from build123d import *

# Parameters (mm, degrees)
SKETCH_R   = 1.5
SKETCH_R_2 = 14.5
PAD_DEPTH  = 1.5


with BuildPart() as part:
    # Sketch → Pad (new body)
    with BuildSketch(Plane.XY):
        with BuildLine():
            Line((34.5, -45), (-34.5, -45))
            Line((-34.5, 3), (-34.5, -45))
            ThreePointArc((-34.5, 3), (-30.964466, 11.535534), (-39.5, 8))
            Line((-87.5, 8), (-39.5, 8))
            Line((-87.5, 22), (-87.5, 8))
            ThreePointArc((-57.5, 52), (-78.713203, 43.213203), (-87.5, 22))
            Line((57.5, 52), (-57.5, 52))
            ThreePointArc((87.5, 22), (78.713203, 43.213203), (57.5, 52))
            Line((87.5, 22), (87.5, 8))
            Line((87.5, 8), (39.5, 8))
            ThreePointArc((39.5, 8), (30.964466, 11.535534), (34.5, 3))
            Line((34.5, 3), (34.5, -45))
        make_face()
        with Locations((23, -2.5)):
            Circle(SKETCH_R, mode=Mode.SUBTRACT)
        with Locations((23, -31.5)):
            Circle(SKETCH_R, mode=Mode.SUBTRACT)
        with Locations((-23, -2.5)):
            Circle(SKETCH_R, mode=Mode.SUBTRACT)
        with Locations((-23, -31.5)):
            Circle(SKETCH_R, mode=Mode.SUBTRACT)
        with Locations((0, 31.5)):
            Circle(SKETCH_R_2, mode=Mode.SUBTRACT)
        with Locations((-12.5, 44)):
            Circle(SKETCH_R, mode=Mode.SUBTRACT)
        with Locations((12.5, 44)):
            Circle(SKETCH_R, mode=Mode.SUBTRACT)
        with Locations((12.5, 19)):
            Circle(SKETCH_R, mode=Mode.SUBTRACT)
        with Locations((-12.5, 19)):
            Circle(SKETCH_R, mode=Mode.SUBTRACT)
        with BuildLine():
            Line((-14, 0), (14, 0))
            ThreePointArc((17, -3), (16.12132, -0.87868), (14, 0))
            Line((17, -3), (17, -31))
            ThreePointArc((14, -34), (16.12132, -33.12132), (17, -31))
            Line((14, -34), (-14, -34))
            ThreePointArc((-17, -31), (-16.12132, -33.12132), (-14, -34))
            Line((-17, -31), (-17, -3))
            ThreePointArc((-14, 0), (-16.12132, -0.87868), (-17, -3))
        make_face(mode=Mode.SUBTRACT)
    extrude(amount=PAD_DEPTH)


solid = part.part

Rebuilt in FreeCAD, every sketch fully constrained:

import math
import FreeCAD as App
import Part
import Sketcher

V = App.Vector

doc = App.newDocument("Part")
body = doc.addObject("PartDesign::Body", "Body")

# Sketch on XY plane
sketch1 = body.newObject("Sketcher::SketchObject", "Sketch")
sketch1.AttachmentSupport = (doc.getObject("XY_Plane"), [""])
sketch1.MapMode = "FlatFace"
sketch1.addGeometry([
    Part.LineSegment(V(-34.5, -45, 0), V(34.5, -45, 0)),  # 0
    Part.LineSegment(V(34.5, -45, 0), V(34.5, 3, 0)),  # 1
    Part.ArcOfCircle(Part.Circle(V(34.5, 8, 0), V(0, 0, 1), 5), math.radians(-0.000001), math.radians(270.000001)),  # 2
    Part.LineSegment(V(39.5, 8, 0), V(87.5, 8, 0)),  # 3
    Part.LineSegment(V(87.5, 8, 0), V(87.5, 22, 0)),  # 4
    Part.ArcOfCircle(Part.Circle(V(57.499999, 21.999999, 0), V(0, 0, 1), 30.000001), math.radians(0.000003), math.radians(89.999997)),  # 5
    Part.LineSegment(V(57.5, 52, 0), V(-57.5, 52, 0)),  # 6
    Part.ArcOfCircle(Part.Circle(V(-57.499999, 21.999999, 0), V(0, 0, 1), 30.000001), math.radians(90.000003), math.radians(179.999997)),  # 7
    Part.LineSegment(V(-87.5, 22, 0), V(-87.5, 8, 0)),  # 8
    Part.LineSegment(V(-87.5, 8, 0), V(-39.5, 8, 0)),  # 9
    Part.ArcOfCircle(Part.Circle(V(-34.5, 8, 0), V(0, 0, 1), 5), math.radians(-90.000001), math.radians(180.000001)),  # 10
    Part.LineSegment(V(-34.5, 3, 0), V(-34.5, -45, 0)),  # 11
    Part.Circle(V(23, -31.5, 0), V(0, 0, 1), 1.5),  # 12
    Part.LineSegment(V(-14, 0, 0), V(14, 0, 0)),  # 13
    Part.ArcOfCircle(Part.Circle(V(13.999999, -3.000001, 0), V(0, 0, 1), 3.000001), math.radians(0.000022), math.radians(89.999978)),  # 14
    Part.LineSegment(V(17, -3, 0), V(17, -31, 0)),  # 15
    Part.ArcOfCircle(Part.Circle(V(13.999999, -30.999999, 0), V(0, 0, 1), 3.000001), math.radians(-89.999978), math.radians(-0.000022)),  # 16
    Part.LineSegment(V(14, -34, 0), V(-14, -34, 0)),  # 17
    Part.ArcOfCircle(Part.Circle(V(-13.999999, -30.999999, 0), V(0, 0, 1), 3.000001), math.radians(-179.999978), math.radians(-90.000022)),  # 18
    Part.LineSegment(V(-17, -31, 0), V(-17, -3, 0)),  # 19
    Part.ArcOfCircle(Part.Circle(V(-13.999999, -3.000001, 0), V(0, 0, 1), 3.000001), math.radians(90.000022), math.radians(179.999978)),  # 20
    Part.Circle(V(23, -2.5, 0), V(0, 0, 1), 1.5),  # 21
    Part.Circle(V(-23, -31.5, 0), V(0, 0, 1), 1.5),  # 22
    Part.Circle(V(-23, -2.5, 0), V(0, 0, 1), 1.5),  # 23
    Part.Circle(V(12.5, 19, 0), V(0, 0, 1), 1.5),  # 24
    Part.Circle(V(12.5, 44, 0), V(0, 0, 1), 1.5),  # 25
    Part.Circle(V(0, 31.5, 0), V(0, 0, 1), 14.5),  # 26
    Part.Circle(V(-12.5, 19, 0), V(0, 0, 1), 1.5),  # 27
    Part.Circle(V(-12.5, 44, 0), V(0, 0, 1), 1.5),  # 28
], False)
sketch1.addConstraint([
    Sketcher.Constraint("Coincident", 0, 2, 1, 1),
    Sketcher.Constraint("Coincident", 1, 2, 2, 2),
    Sketcher.Constraint("Coincident", 2, 1, 3, 1),
    Sketcher.Constraint("Coincident", 3, 2, 4, 1),
    Sketcher.Constraint("Tangent", 4, 2, 5, 1),
    Sketcher.Constraint("Tangent", 5, 2, 6, 1),
    Sketcher.Constraint("Tangent", 6, 2, 7, 1),
    Sketcher.Constraint("Tangent", 7, 2, 8, 1),
    Sketcher.Constraint("Coincident", 8, 2, 9, 1),
    Sketcher.Constraint("Coincident", 9, 2, 10, 2),
    Sketcher.Constraint("Coincident", 10, 1, 11, 1),
    Sketcher.Constraint("Coincident", 11, 2, 0, 1),
    Sketcher.Constraint("Tangent", 13, 2, 14, 2),
    Sketcher.Constraint("Tangent", 14, 1, 15, 1),
    Sketcher.Constraint("Tangent", 15, 2, 16, 2),
    Sketcher.Constraint("Tangent", 16, 1, 17, 1),
    Sketcher.Constraint("Tangent", 17, 2, 18, 2),
    Sketcher.Constraint("Tangent", 18, 1, 19, 1),
    Sketcher.Constraint("Tangent", 19, 2, 20, 2),
    Sketcher.Constraint("Tangent", 20, 1, 13, 1),
    Sketcher.Constraint("Horizontal", 0),
    Sketcher.Constraint("Vertical", 1),
    Sketcher.Constraint("Horizontal", 3),
    Sketcher.Constraint("Vertical", 4),
    Sketcher.Constraint("Horizontal", 6),
    Sketcher.Constraint("Vertical", 8),
    Sketcher.Constraint("Horizontal", 9),
    Sketcher.Constraint("Vertical", 11),
    Sketcher.Constraint("Horizontal", 13),
    Sketcher.Constraint("Vertical", 15),
    Sketcher.Constraint("Horizontal", 17),
    Sketcher.Constraint("Vertical", 19),
    Sketcher.Constraint("Equal", 5, 7),
    Sketcher.Constraint("Equal", 2, 10),
    Sketcher.Constraint("Equal", 14, 16),
    Sketcher.Constraint("Equal", 16, 18),
    Sketcher.Constraint("Equal", 18, 20),
    Sketcher.Constraint("Equal", 12, 21),
    Sketcher.Constraint("Equal", 21, 22),
    Sketcher.Constraint("Equal", 22, 23),
    Sketcher.Constraint("Equal", 23, 24),
    Sketcher.Constraint("Equal", 24, 25),
    Sketcher.Constraint("Equal", 25, 27),
    Sketcher.Constraint("Equal", 27, 28),
    Sketcher.Constraint("Symmetric", 13, 2, 20, 1, -1, 1),
    Sketcher.Constraint("Symmetric", 2, 3, 10, 3, -2),
    Sketcher.Constraint("Symmetric", 12, 3, 22, 3, -2),
    Sketcher.Constraint("Symmetric", 21, 3, 23, 3, -2),
    Sketcher.Constraint("Symmetric", 24, 3, 27, 3, -2),
    Sketcher.Constraint("Symmetric", 25, 3, 28, 3, -2),
    Sketcher.Constraint("Symmetric", 3, 2, 8, 2, -2),
    Sketcher.Constraint("PointOnObject", 26, 3, -2),
    Sketcher.Constraint("Horizontal", 10, 3, 2, 1),
    Sketcher.Constraint("Vertical", 12, 3, 21, 3),
    Sketcher.Constraint("Vertical", 24, 3, 25, 3),
    Sketcher.Constraint("Vertical", 2, 3, 0, 2),
    Sketcher.Constraint("Equal", 9, 1),
    Sketcher.Constraint("Equal", 17, 15),
    Sketcher.Constraint("Diameter", 12, 3.0),
    Sketcher.Constraint("Diameter", 26, 29.0),
    Sketcher.Constraint("Radius", 2, 5.0),
    Sketcher.Constraint("Radius", 5, 30.000001),
    Sketcher.Constraint("Radius", 14, 3.000001),
    Sketcher.Constraint("DistanceX", 0, 1, 0, 2, 69.0),
    Sketcher.Constraint("DistanceX", 3, 1, 3, 2, 48.0),
    Sketcher.Constraint("DistanceX", 6, 2, 6, 1, 115.0),
    Sketcher.Constraint("DistanceX", 13, 1, 13, 2, 28.0),
    Sketcher.Constraint("DistanceY", 4, 1, 4, 2, 14.0),
    Sketcher.Constraint("DistanceY", -1, 1, 2, 3, 8.0),
    Sketcher.Constraint("DistanceX", -1, 1, 12, 3, 23.0),
    Sketcher.Constraint("DistanceY", -1, 1, 24, 3, 19.0),
    Sketcher.Constraint("DistanceY", -1, 1, 25, 3, 44.0),
    Sketcher.Constraint("DistanceY", 12, 3, 21, 3, 29.0),
    Sketcher.Constraint("DistanceX", 24, 3, 2, 3, 22.0),
    Sketcher.Constraint("DistanceY", 21, 3, 26, 3, 34.0),
    Sketcher.Constraint("DistanceY", 12, 3, -1, 1, 31.5),
])
pad1 = body.newObject("PartDesign::Pad", "Pad")
pad1.Profile = sketch1
pad1.Length = 1.5

doc.recompute()
